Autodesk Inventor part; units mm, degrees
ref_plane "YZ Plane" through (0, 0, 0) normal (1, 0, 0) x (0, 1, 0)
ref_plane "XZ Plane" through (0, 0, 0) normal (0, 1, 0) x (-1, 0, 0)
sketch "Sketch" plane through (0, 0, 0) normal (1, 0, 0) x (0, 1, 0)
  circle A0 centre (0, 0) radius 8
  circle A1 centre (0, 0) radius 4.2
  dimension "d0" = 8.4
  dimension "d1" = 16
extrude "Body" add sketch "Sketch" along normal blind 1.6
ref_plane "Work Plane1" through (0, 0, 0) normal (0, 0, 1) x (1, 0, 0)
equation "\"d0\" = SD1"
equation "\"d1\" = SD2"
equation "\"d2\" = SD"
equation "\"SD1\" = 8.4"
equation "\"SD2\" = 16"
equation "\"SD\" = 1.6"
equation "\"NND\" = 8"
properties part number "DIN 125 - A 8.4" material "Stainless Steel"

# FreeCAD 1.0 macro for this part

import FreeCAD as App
import Part
import Sketcher

V = App.Vector

doc = App.newDocument("Part")
body = doc.addObject("PartDesign::Body", "Body")

# Sketch on YZ plane
sketch1 = body.newObject("Sketcher::SketchObject", "Sketch")
sketch1.AttachmentSupport = (doc.getObject("YZ_Plane"), [""])
sketch1.MapMode = "FlatFace"
sketch1.addGeometry([
    Part.Circle(V(0, 0, 0), V(0, 0, 1), 8),
    Part.Circle(V(0, 0, 0), V(0, 0, 1), 4.2),
], False)
sketch1.addConstraint([
    Sketcher.Constraint("Coincident", 0, 3, -1, 1),
    Sketcher.Constraint("Coincident", 1, 3, -1, 1),
    Sketcher.Constraint("Diameter", 0, 16.0),
    Sketcher.Constraint("Diameter", 1, 8.4),
])
pad1 = body.newObject("PartDesign::Pad", "Pad")
pad1.Profile = sketch1
pad1.Length = 1.6

doc.recompute()
